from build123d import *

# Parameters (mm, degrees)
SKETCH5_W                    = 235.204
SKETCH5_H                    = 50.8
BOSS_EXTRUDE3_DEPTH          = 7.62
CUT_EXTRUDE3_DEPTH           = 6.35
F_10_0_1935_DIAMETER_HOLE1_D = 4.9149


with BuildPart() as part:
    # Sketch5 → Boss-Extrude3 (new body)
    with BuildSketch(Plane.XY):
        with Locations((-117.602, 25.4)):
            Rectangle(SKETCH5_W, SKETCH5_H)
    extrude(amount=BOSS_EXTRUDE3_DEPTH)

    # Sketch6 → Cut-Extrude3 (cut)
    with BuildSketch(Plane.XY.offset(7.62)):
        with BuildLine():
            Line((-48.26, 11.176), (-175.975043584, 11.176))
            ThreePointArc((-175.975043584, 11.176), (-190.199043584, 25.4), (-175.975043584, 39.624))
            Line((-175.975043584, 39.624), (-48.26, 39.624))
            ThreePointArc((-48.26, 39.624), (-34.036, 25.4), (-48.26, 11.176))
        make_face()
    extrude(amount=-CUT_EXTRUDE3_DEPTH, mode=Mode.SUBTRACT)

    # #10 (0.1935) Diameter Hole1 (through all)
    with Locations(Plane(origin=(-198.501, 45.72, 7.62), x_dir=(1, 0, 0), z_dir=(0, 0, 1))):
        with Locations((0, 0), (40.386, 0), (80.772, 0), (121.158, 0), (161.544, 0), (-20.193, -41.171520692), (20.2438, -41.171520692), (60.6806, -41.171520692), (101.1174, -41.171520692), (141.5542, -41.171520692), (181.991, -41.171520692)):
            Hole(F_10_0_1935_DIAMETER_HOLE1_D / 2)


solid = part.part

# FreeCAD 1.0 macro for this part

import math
import FreeCAD as App
import Part
import Sketcher
from FreeCAD import Vector
Q = App.Units.Quantity


def add_polygon(sketch, points):
    """Adds a closed chain of lines whose ends are joined by coincident constraints."""
    first, n = sketch.GeometryCount, len(points)
    for a, b in zip(points, points[1:] + points[:1]):
        sketch.addGeometry(Part.LineSegment(App.Vector(*a, 0), App.Vector(*b, 0)), False)
    for i in range(n):
        sketch.addConstraint(Sketcher.Constraint("Coincident", first + i, 2, first + (i + 1) % n, 1))

doc = App.newDocument("Part")
body = doc.addObject("PartDesign::Body", "Body")

sketch1 = body.newObject("Sketcher::SketchObject", "Sketch")
sketch1.AttachmentSupport = (doc.getObject("XY_Plane"), [""])
sketch1.MapMode = "FlatFace"
add_polygon(sketch1, [(-235, 51), (-235, 0), (0, 0), (0, 51)])
sketch1.addConstraint([
    Sketcher.Constraint("Vertical", 0),
    Sketcher.Constraint("Horizontal", 1),
    Sketcher.Constraint("Vertical", 2),
    Sketcher.Constraint("Horizontal", 3),
    Sketcher.Constraint("Coincident", 1, 2, -1, 1),
    Sketcher.Constraint("DistanceY", 0, 2, 0, 1, Q("2 in")),
    Sketcher.Constraint("DistanceX", 1, 1, 1, 2, Q("9.26 in")),
])
pad1 = body.newObject("PartDesign::Pad", "Pad")
pad1.Profile = sketch1
pad1.Length = Q("0.3 in")

sketch2 = body.newObject("Sketcher::SketchObject", "Sketch001")
sketch2.AttachmentSupport = (doc.getObject("XY_Plane"), [""])
sketch2.MapMode = "FlatFace"
sketch2.AttachmentOffset = App.Placement(Vector(0, 0, 0.3 * 25.4), App.Rotation())
sketch2.addGeometry([
    Part.LineSegment(Vector(-176, 11, 0), Vector(-48, 11, 0)),
    Part.ArcOfCircle(Part.Circle(Vector(-48, 25, 0), Vector(0, 0, 1), 14), math.radians(-90), math.radians(90)),
    Part.LineSegment(Vector(-48, 40, 0), Vector(-176, 40, 0)),
    Part.ArcOfCircle(Part.Circle(Vector(-176, 25, 0), Vector(0, 0, 1), 14), math.radians(90), math.radians(270)),
], False)
sketch2.addConstraint([
    Sketcher.Constraint("Tangent", 0, 2, 1, 1),
    Sketcher.Constraint("Tangent", 1, 2, 2, 1),
    Sketcher.Constraint("Tangent", 2, 2, 3, 1),
    Sketcher.Constraint("Tangent", 3, 2, 0, 1),
    Sketcher.Constraint("Horizontal", 0),
    Sketcher.Constraint("Horizontal", 2),
    Sketcher.Constraint("Radius", 1, Q("0.56 in")),
    Sketcher.Constraint("DistanceY", -1, 1, 1, 3, Q("1 in")),
    Sketcher.Constraint("DistanceX", 1, 3, -1, 1, Q("1.9 in")),
    Sketcher.Constraint("DistanceX", 0, 1, 0, 2, Q("127.715044 mm")),
])
pocket1 = body.newObject("PartDesign::Pocket", "Pocket")
pocket1.Profile = sketch2
pocket1.Length = Q("0.25 in")

sketch3 = body.newObject("Sketcher::SketchObject", "Sketch002")
sketch3.AttachmentSupport = (doc.getObject("XY_Plane"), [""])
sketch3.MapMode = "FlatFace"
sketch3.AttachmentOffset = App.Placement(Vector(0, 0, 0.3 * 25.4), App.Rotation())
sketch3.addGeometry([
    Part.Circle(Vector(-198.5, 45.7, 0), Vector(0, 0, 1), 2.5),
    Part.Circle(Vector(-158.1, 45.7, 0), Vector(0, 0, 1), 2.5),
    Part.Circle(Vector(-117.7, 45.7, 0), Vector(0, 0, 1), 2.5),
    Part.Circle(Vector(-77.3, 45.7, 0), Vector(0, 0, 1), 2.5),
    Part.Circle(Vector(-37, 45.7, 0), Vector(0, 0, 1), 2.5),
    Part.Circle(Vector(-218.7, 4.5, 0), Vector(0, 0, 1), 2.5),
    Part.Circle(Vector(-178.3, 4.5, 0), Vector(0, 0, 1), 2.5),
    Part.Circle(Vector(-137.8, 4.5, 0), Vector(0, 0, 1), 2.5),
    Part.Circle(Vector(-97.4, 4.5, 0), Vector(0, 0, 1), 2.5),
    Part.Circle(Vector(-56.9, 4.5, 0), Vector(0, 0, 1), 2.5),
    Part.Circle(Vector(-16.5, 4.5, 0), Vector(0, 0, 1), 2.5),
], False)
sketch3.addConstraint([
    Sketcher.Constraint("Equal", 0, 1),
    Sketcher.Constraint("Equal", 1, 2),
    Sketcher.Constraint("Equal", 2, 3),
    Sketcher.Constraint("Equal", 3, 4),
    Sketcher.Constraint("Equal", 4, 5),
    Sketcher.Constraint("Equal", 5, 6),
    Sketcher.Constraint("Equal", 6, 7),
    Sketcher.Constraint("Equal", 7, 8),
    Sketcher.Constraint("Equal", 8, 9),
    Sketcher.Constraint("Equal", 9, 10),
    Sketcher.Constraint("Horizontal", 0, 3, 1, 3),
    Sketcher.Constraint("Horizontal", 1, 3, 2, 3),
    Sketcher.Constraint("Horizontal", 2, 3, 3, 3),
    Sketcher.Constraint("Horizontal", 3, 3, 4, 3),
    Sketcher.Constraint("Horizontal", 5, 3, 6, 3),
    Sketcher.Constraint("Horizontal", 6, 3, 7, 3),
    Sketcher.Constraint("Horizontal", 7, 3, 8, 3),
    Sketcher.Constraint("Horizontal", 8, 3, 9, 3),
    Sketcher.Constraint("Horizontal", 9, 3, 10, 3),
    Sketcher.Constraint("Diameter", 0, Q("0.1935 in")),
    Sketcher.Constraint("DistanceY", -1, 1, 0, 3, Q("1.8 in")),
    Sketcher.Constraint("DistanceX", 5, 3, -1, 1, Q("8.61 in")),
    Sketcher.Constraint("DistanceX", 10, 3, -1, 1, Q("0.65 in")),
    Sketcher.Constraint("DistanceX", 0, 3, 1, 3, Q("1.59 in")),
    Sketcher.Constraint("DistanceX", 1, 3, 2, 3, Q("1.59 in")),
    Sketcher.Constraint("DistanceX", 2, 3, 3, 3, Q("1.59 in")),
    Sketcher.Constraint("DistanceX", 3, 3, 4, 3, Q("1.59 in")),
    Sketcher.Constraint("DistanceX", 0, 3, -1, 1, Q("7.815 in")),
    Sketcher.Constraint("DistanceX", 6, 3, -1, 1, Q("7.018 in")),
    Sketcher.Constraint("DistanceX", 7, 3, -1, 1, Q("5.426 in")),
    Sketcher.Constraint("DistanceX", 8, 3, -1, 1, Q("3.834 in")),
    Sketcher.Constraint("DistanceX", 9, 3, -1, 1, Q("2.242 in")),
    Sketcher.Constraint("DistanceY", -1, 1, 5, 3, Q("4.548479 mm")),
])
doc.recompute()
hole = body.newObject("PartDesign::Hole", "Hole")
hole.Profile = sketch3
hole.ThreadType = "None"
hole.Diameter = Q("0.1935 in")
hole.DepthType = "ThroughAll"

doc.recompute()
